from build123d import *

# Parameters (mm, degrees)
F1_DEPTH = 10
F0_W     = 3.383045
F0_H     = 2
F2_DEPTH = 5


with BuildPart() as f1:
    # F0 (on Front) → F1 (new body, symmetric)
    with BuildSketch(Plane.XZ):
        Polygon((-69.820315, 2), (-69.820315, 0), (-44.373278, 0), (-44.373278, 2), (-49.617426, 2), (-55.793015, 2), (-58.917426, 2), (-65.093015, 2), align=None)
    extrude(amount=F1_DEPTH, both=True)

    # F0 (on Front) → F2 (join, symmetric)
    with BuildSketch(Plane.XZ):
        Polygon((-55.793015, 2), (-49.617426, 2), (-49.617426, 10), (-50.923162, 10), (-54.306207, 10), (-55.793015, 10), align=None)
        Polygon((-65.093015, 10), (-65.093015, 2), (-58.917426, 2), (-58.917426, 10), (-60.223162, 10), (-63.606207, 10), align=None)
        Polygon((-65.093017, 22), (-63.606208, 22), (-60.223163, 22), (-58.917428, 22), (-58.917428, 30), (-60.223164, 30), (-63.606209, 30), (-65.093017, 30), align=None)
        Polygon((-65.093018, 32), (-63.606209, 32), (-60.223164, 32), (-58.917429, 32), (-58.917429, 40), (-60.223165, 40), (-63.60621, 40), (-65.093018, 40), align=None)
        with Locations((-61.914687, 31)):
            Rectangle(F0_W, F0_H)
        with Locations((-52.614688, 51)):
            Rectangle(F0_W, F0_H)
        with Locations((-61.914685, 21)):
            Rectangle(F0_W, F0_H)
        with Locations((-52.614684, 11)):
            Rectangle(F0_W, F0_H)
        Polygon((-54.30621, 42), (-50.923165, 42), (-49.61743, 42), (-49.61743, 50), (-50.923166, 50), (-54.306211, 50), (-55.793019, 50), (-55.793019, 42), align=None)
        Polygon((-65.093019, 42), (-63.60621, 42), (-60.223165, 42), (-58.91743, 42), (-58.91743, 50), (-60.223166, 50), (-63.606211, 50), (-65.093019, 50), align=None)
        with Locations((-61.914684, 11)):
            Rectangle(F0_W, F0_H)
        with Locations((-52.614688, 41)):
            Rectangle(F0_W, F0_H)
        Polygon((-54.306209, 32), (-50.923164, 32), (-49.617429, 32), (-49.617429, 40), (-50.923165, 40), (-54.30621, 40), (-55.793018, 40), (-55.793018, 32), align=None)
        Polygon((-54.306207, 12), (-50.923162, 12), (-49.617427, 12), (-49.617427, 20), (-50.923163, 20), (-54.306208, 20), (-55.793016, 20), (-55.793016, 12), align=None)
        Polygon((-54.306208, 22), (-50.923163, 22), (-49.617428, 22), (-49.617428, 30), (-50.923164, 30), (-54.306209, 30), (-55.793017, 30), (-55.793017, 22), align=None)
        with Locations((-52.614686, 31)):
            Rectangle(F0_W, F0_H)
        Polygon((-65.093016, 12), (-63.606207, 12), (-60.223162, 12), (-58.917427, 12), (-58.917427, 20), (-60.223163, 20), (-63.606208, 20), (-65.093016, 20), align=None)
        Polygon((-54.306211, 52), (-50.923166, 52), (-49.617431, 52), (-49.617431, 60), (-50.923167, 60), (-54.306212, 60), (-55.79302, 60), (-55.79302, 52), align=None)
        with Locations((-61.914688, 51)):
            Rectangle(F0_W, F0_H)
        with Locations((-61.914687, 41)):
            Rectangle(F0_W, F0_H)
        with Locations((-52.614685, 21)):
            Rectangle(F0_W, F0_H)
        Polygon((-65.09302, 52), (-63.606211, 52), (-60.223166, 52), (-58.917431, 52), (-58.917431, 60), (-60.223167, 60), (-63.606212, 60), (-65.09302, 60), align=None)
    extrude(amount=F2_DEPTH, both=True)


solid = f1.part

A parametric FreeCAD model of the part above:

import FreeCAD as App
import Part
import Sketcher
from FreeCAD import Vector


def add_polygon(sketch, points):
    """Adds a closed chain of lines whose ends are joined by coincident constraints."""
    first, n = sketch.GeometryCount, len(points)
    for a, b in zip(points, points[1:] + points[:1]):
        sketch.addGeometry(Part.LineSegment(App.Vector(*a, 0), App.Vector(*b, 0)), False)
    for i in range(n):
        sketch.addConstraint(Sketcher.Constraint("Coincident", first + i, 2, first + (i + 1) % n, 1))

doc = App.newDocument("Part")
body = doc.addObject("PartDesign::Body", "Body")

sketch1 = doc.addObject("Sketcher::SketchObject", "Sketch")
body.addObject(sketch1)
sketch1.AttachmentSupport = (doc.XZ_Plane, [""])
sketch1.MapMode = "FlatFace"
add_polygon(sketch1, [(-69.820315, 2), (-69.820315, 0), (-44.373278, 0), (-44.373278, 2)])
sketch1.addConstraint([
    Sketcher.Constraint("Vertical", 0),
    Sketcher.Constraint("Horizontal", 1),
    Sketcher.Constraint("Vertical", 2),
    Sketcher.Constraint("Horizontal", 3),
    Sketcher.Constraint("PointOnObject", 0, 2, -1),
    Sketcher.Constraint("DistanceY", 0, 2, 0, 1, 2.0),
    Sketcher.Constraint("DistanceX", 1, 1, 1, 2, 25.447037),
    Sketcher.Constraint("DistanceX", 0, 2, -1, 1, 69.820315),
])
pad1 = doc.addObject("PartDesign::Pad", "Pad")
body.addObject(pad1)
pad1.Profile = sketch1
pad1.Length = 20
pad1.Midplane = True

sketch2 = doc.addObject("Sketcher::SketchObject", "Sketch001")
body.addObject(sketch2)
sketch2.AttachmentSupport = (doc.XZ_Plane, [""])
sketch2.MapMode = "FlatFace"
add_polygon(sketch2, [(-55.793015, 2), (-49.617426, 2), (-49.617426, 10), (-50.923161, 10), (-50.923161, 12), (-49.617427, 12), (-49.617427, 20), (-50.923162, 20), (-50.923162, 22), (-49.617428, 22), (-49.617428, 30), (-50.923164, 30), (-50.923164, 32), (-49.617429, 32), (-49.617429, 40), (-50.923166, 40), (-50.923166, 42), (-49.61743, 42), (-49.61743, 50), (-50.923166, 50), (-50.923166, 52), (-49.617431, 52), (-49.617431, 60), (-55.79302, 60), (-55.79302, 52), (-54.30621, 52), (-54.30621, 50), (-55.793019, 50), (-55.793019, 42), (-54.30621, 42), (-54.30621, 40), (-55.793018, 40), (-55.793018, 32), (-54.306208, 32), (-54.306208, 30), (-55.793017, 30), (-55.793017, 22), (-54.306207, 22), (-54.306207, 20), (-55.793016, 20), (-55.793016, 12), (-54.306207, 12), (-54.306207, 10), (-55.793015, 10)])
add_polygon(sketch2, [(-65.093015, 10), (-65.093015, 2), (-58.917426, 2), (-58.917426, 10), (-60.223162, 10), (-60.223162, 12), (-58.917427, 12), (-58.917427, 20), (-60.223163, 20), (-60.223163, 22), (-58.917428, 22), (-58.917428, 30), (-60.223165, 30), (-60.223165, 32), (-58.917429, 32), (-58.917429, 40), (-60.223165, 40), (-60.223165, 42), (-58.91743, 42), (-58.91743, 50), (-60.223166, 50), (-60.223166, 52), (-58.917431, 52), (-58.917431, 60), (-65.09302, 60), (-65.09302, 52), (-63.606211, 52), (-63.606211, 50), (-65.093019, 50), (-65.093019, 42), (-63.606209, 42), (-63.606209, 40), (-65.093018, 40), (-65.093018, 32), (-63.606209, 32), (-63.606209, 30), (-65.093017, 30), (-65.093017, 22), (-63.606207, 22), (-63.606207, 20), (-65.093016, 20), (-65.093016, 12), (-63.606206, 12), (-63.606206, 10)])
sketch2.addConstraint([
    Sketcher.Constraint("Horizontal", 0),
    Sketcher.Constraint("Vertical", 1),
    Sketcher.Constraint("Horizontal", 2),
    Sketcher.Constraint("Vertical", 3),
    Sketcher.Constraint("Horizontal", 4),
    Sketcher.Constraint("Vertical", 5),
    Sketcher.Constraint("Horizontal", 6),
    Sketcher.Constraint("Vertical", 7),
    Sketcher.Constraint("Horizontal", 8),
    Sketcher.Constraint("Vertical", 9),
    Sketcher.Constraint("Horizontal", 10),
    Sketcher.Constraint("Vertical", 11),
    Sketcher.Constraint("Horizontal", 12),
    Sketcher.Constraint("Vertical", 13),
    Sketcher.Constraint("Horizontal", 14),
    Sketcher.Constraint("Vertical", 15),
    Sketcher.Constraint("Horizontal", 16),
    Sketcher.Constraint("Vertical", 17),
    Sketcher.Constraint("Horizontal", 18),
    Sketcher.Constraint("Vertical", 19),
    Sketcher.Constraint("Horizontal", 20),
    Sketcher.Constraint("Vertical", 21),
    Sketcher.Constraint("Horizontal", 22),
    Sketcher.Constraint("Vertical", 23),
    Sketcher.Constraint("Horizontal", 24),
    Sketcher.Constraint("Vertical", 25),
    Sketcher.Constraint("Horizontal", 26),
    Sketcher.Constraint("Vertical", 27),
    Sketcher.Constraint("Horizontal", 28),
    Sketcher.Constraint("Vertical", 29),
    Sketcher.Constraint("Horizontal", 30),
    Sketcher.Constraint("Vertical", 31),
    Sketcher.Constraint("Horizontal", 32),
    Sketcher.Constraint("Vertical", 33),
    Sketcher.Constraint("Horizontal", 34),
    Sketcher.Constraint("Vertical", 35),
    Sketcher.Constraint("Horizontal", 36),
    Sketcher.Constraint("Vertical", 37),
    Sketcher.Constraint("Horizontal", 38),
    Sketcher.Constraint("Vertical", 39),
    Sketcher.Constraint("Horizontal", 40),
    Sketcher.Constraint("Vertical", 41),
    Sketcher.Constraint("Horizontal", 42),
    Sketcher.Constraint("Vertical", 43),
    Sketcher.Constraint("Vertical", 44),
    Sketcher.Constraint("Horizontal", 45),
    Sketcher.Constraint("Vertical", 46),
    Sketcher.Constraint("Horizontal", 47),
    Sketcher.Constraint("Vertical", 48),
    Sketcher.Constraint("Horizontal", 49),
    Sketcher.Constraint("Vertical", 50),
    Sketcher.Constraint("Horizontal", 51),
    Sketcher.Constraint("Vertical", 52),
    Sketcher.Constraint("Horizontal", 53),
    Sketcher.Constraint("Vertical", 54),
    Sketcher.Constraint("Horizontal", 55),
    Sketcher.Constraint("Vertical", 56),
    Sketcher.Constraint("Horizontal", 57),
    Sketcher.Constraint("Vertical", 58),
    Sketcher.Constraint("Horizontal", 59),
    Sketcher.Constraint("Vertical", 60),
    Sketcher.Constraint("Horizontal", 61),
    Sketcher.Constraint("Vertical", 62),
    Sketcher.Constraint("Horizontal", 63),
    Sketcher.Constraint("Vertical", 64),
    Sketcher.Constraint("Horizontal", 65),
    Sketcher.Constraint("Vertical", 66),
    Sketcher.Constraint("Horizontal", 67),
    Sketcher.Constraint("Vertical", 68),
    Sketcher.Constraint("Horizontal", 69),
    Sketcher.Constraint("Vertical", 70),
    Sketcher.Constraint("Horizontal", 71),
    Sketcher.Constraint("Vertical", 72),
    Sketcher.Constraint("Horizontal", 73),
    Sketcher.Constraint("Vertical", 74),
    Sketcher.Constraint("Horizontal", 75),
    Sketcher.Constraint("Vertical", 76),
    Sketcher.Constraint("Horizontal", 77),
    Sketcher.Constraint("Vertical", 78),
    Sketcher.Constraint("Horizontal", 79),
    Sketcher.Constraint("Vertical", 80),
    Sketcher.Constraint("Horizontal", 81),
    Sketcher.Constraint("Vertical", 82),
    Sketcher.Constraint("Horizontal", 83),
    Sketcher.Constraint("Vertical", 84),
    Sketcher.Constraint("Horizontal", 85),
    Sketcher.Constraint("Vertical", 86),
    Sketcher.Constraint("Horizontal", 87),
    Sketcher.Constraint("Horizontal", 20, 2, 23, 2),
    Sketcher.Constraint("Horizontal", 18, 2, 25, 2),
    Sketcher.Constraint("Horizontal", 16, 2, 27, 2),
    Sketcher.Constraint("Horizontal", 14, 2, 29, 2),
    Sketcher.Constraint("Horizontal", 12, 2, 31, 2),
    Sketcher.Constraint("Horizontal", 10, 2, 33, 2),
    Sketcher.Constraint("Horizontal", 8, 2, 35, 2),
    Sketcher.Constraint("Horizontal", 6, 2, 37, 2),
    Sketcher.Constraint("Horizontal", 4, 2, 39, 2),
    Sketcher.Constraint("Horizontal", 2, 2, 41, 2),
    Sketcher.Constraint("Horizontal", 43, 2, 44, 2),
    Sketcher.Constraint("Horizontal", 42, 2, 46, 2),
    Sketcher.Constraint("Horizontal", 40, 2, 48, 2),
    Sketcher.Constraint("Horizontal", 38, 2, 50, 2),
    Sketcher.Constraint("Horizontal", 36, 2, 52, 2),
    Sketcher.Constraint("Horizontal", 34, 2, 54, 2),
    Sketcher.Constraint("Horizontal", 32, 2, 56, 2),
    Sketcher.Constraint("Horizontal", 30, 2, 58, 2),
    Sketcher.Constraint("Horizontal", 28, 2, 60, 2),
    Sketcher.Constraint("Horizontal", 26, 2, 62, 2),
    Sketcher.Constraint("Horizontal", 24, 2, 64, 2),
    Sketcher.Constraint("Horizontal", 22, 2, 66, 2),
    Sketcher.Constraint("Horizontal", 65, 2, 68, 2),
    Sketcher.Constraint("Horizontal", 63, 2, 70, 2),
    Sketcher.Constraint("Horizontal", 61, 2, 72, 2),
    Sketcher.Constraint("Horizontal", 59, 2, 74, 2),
    Sketcher.Constraint("Horizontal", 57, 2, 76, 2),
    Sketcher.Constraint("Horizontal", 55, 2, 78, 2),
    Sketcher.Constraint("Horizontal", 53, 2, 80, 2),
    Sketcher.Constraint("Horizontal", 51, 2, 82, 2),
    Sketcher.Constraint("Horizontal", 49, 2, 84, 2),
    Sketcher.Constraint("Horizontal", 47, 2, 86, 2),
    Sketcher.Constraint("Vertical", 1, 2, 4, 2),
    Sketcher.Constraint("Vertical", 3, 2, 6, 2),
    Sketcher.Constraint("Vertical", 5, 2, 8, 2),
    Sketcher.Constraint("Vertical", 7, 2, 10, 2),
    Sketcher.Constraint("Vertical", 9, 2, 12, 2),
    Sketcher.Constraint("Vertical", 13, 2, 16, 2),
    Sketcher.Constraint("Vertical", 15, 2, 18, 2),
    Sketcher.Constraint("Vertical", 17, 2, 20, 2),
    Sketcher.Constraint("Vertical", 23, 2, 26, 2),
    Sketcher.Constraint("Vertical", 25, 2, 28, 2),
    Sketcher.Constraint("Vertical", 27, 2, 30, 2),
    Sketcher.Constraint("Vertical", 31, 2, 34, 2),
    Sketcher.Constraint("Vertical", 33, 2, 36, 2),
    Sketcher.Constraint("Vertical", 35, 2, 38, 2),
    Sketcher.Constraint("Vertical", 37, 2, 40, 2),
    Sketcher.Constraint("Vertical", 39, 2, 42, 2),
    Sketcher.Constraint("Vertical", 46, 2, 49, 2),
    Sketcher.Constraint("Vertical", 48, 2, 51, 2),
    Sketcher.Constraint("Vertical", 50, 2, 53, 2),
    Sketcher.Constraint("Vertical", 54, 2, 57, 2),
    Sketcher.Constraint("Vertical", 56, 2, 59, 2),
    Sketcher.Constraint("Vertical", 58, 2, 61, 2),
    Sketcher.Constraint("Vertical", 60, 2, 63, 2),
    Sketcher.Constraint("Vertical", 62, 2, 65, 2),
    Sketcher.Constraint("Vertical", 68, 2, 71, 2),
    Sketcher.Constraint("Vertical", 70, 2, 73, 2),
    Sketcher.Constraint("Vertical", 72, 2, 75, 2),
    Sketcher.Constraint("Vertical", 74, 2, 77, 2),
    Sketcher.Constraint("Vertical", 76, 2, 79, 2),
    Sketcher.Constraint("Vertical", 80, 2, 83, 2),
    Sketcher.Constraint("Vertical", 82, 2, 85, 2),
    Sketcher.Constraint("Vertical", 84, 2, 87, 2),
    Sketcher.Constraint("Equal", 10, 14),
    Sketcher.Constraint("Equal", 28, 32),
    Sketcher.Constraint("Equal", 22, 45),
    Sketcher.Constraint("Equal", 20, 47),
    Sketcher.Constraint("Equal", 51, 55),
    Sketcher.Constraint("Equal", 42, 69),
    Sketcher.Constraint("Equal", 77, 81),
    Sketcher.Constraint("Equal", 1, 5),
    Sketcher.Constraint("Equal", 3, 7),
    Sketcher.Constraint("Equal", 5, 9),
    Sketcher.Constraint("Equal", 7, 11),
    Sketcher.Constraint("Equal", 9, 13),
    Sketcher.Constraint("Equal", 11, 15),
    Sketcher.Constraint("Equal", 13, 17),
    Sketcher.Constraint("Equal", 15, 19),
    Sketcher.Constraint("Equal", 17, 21),
    Sketcher.Constraint("DistanceY", 1, 1, 1, 2, 8.0),
    Sketcher.Constraint("DistanceY", 3, 1, 3, 2, 2.0),
    Sketcher.Constraint("DistanceY", -1, 1, 0, 2, 2.0),
    Sketcher.Constraint("DistanceX", 0, 1, 0, 2, 6.175589),
    Sketcher.Constraint("DistanceX", 24, 1, 24, 2, 1.486809),
    Sketcher.Constraint("DistanceX", 2, 2, 2, 1, 1.305735),
    Sketcher.Constraint("DistanceX", 2, 2, -1, 1, 50.923161),
    Sketcher.Constraint("DistanceX", 47, 2, -1, 1, 60.223162),
])
pad2 = doc.addObject("PartDesign::Pad", "Pad001")
body.addObject(pad2)
pad2.Profile = sketch2
pad2.Length = 10
pad2.Midplane = True

doc.recompute()
